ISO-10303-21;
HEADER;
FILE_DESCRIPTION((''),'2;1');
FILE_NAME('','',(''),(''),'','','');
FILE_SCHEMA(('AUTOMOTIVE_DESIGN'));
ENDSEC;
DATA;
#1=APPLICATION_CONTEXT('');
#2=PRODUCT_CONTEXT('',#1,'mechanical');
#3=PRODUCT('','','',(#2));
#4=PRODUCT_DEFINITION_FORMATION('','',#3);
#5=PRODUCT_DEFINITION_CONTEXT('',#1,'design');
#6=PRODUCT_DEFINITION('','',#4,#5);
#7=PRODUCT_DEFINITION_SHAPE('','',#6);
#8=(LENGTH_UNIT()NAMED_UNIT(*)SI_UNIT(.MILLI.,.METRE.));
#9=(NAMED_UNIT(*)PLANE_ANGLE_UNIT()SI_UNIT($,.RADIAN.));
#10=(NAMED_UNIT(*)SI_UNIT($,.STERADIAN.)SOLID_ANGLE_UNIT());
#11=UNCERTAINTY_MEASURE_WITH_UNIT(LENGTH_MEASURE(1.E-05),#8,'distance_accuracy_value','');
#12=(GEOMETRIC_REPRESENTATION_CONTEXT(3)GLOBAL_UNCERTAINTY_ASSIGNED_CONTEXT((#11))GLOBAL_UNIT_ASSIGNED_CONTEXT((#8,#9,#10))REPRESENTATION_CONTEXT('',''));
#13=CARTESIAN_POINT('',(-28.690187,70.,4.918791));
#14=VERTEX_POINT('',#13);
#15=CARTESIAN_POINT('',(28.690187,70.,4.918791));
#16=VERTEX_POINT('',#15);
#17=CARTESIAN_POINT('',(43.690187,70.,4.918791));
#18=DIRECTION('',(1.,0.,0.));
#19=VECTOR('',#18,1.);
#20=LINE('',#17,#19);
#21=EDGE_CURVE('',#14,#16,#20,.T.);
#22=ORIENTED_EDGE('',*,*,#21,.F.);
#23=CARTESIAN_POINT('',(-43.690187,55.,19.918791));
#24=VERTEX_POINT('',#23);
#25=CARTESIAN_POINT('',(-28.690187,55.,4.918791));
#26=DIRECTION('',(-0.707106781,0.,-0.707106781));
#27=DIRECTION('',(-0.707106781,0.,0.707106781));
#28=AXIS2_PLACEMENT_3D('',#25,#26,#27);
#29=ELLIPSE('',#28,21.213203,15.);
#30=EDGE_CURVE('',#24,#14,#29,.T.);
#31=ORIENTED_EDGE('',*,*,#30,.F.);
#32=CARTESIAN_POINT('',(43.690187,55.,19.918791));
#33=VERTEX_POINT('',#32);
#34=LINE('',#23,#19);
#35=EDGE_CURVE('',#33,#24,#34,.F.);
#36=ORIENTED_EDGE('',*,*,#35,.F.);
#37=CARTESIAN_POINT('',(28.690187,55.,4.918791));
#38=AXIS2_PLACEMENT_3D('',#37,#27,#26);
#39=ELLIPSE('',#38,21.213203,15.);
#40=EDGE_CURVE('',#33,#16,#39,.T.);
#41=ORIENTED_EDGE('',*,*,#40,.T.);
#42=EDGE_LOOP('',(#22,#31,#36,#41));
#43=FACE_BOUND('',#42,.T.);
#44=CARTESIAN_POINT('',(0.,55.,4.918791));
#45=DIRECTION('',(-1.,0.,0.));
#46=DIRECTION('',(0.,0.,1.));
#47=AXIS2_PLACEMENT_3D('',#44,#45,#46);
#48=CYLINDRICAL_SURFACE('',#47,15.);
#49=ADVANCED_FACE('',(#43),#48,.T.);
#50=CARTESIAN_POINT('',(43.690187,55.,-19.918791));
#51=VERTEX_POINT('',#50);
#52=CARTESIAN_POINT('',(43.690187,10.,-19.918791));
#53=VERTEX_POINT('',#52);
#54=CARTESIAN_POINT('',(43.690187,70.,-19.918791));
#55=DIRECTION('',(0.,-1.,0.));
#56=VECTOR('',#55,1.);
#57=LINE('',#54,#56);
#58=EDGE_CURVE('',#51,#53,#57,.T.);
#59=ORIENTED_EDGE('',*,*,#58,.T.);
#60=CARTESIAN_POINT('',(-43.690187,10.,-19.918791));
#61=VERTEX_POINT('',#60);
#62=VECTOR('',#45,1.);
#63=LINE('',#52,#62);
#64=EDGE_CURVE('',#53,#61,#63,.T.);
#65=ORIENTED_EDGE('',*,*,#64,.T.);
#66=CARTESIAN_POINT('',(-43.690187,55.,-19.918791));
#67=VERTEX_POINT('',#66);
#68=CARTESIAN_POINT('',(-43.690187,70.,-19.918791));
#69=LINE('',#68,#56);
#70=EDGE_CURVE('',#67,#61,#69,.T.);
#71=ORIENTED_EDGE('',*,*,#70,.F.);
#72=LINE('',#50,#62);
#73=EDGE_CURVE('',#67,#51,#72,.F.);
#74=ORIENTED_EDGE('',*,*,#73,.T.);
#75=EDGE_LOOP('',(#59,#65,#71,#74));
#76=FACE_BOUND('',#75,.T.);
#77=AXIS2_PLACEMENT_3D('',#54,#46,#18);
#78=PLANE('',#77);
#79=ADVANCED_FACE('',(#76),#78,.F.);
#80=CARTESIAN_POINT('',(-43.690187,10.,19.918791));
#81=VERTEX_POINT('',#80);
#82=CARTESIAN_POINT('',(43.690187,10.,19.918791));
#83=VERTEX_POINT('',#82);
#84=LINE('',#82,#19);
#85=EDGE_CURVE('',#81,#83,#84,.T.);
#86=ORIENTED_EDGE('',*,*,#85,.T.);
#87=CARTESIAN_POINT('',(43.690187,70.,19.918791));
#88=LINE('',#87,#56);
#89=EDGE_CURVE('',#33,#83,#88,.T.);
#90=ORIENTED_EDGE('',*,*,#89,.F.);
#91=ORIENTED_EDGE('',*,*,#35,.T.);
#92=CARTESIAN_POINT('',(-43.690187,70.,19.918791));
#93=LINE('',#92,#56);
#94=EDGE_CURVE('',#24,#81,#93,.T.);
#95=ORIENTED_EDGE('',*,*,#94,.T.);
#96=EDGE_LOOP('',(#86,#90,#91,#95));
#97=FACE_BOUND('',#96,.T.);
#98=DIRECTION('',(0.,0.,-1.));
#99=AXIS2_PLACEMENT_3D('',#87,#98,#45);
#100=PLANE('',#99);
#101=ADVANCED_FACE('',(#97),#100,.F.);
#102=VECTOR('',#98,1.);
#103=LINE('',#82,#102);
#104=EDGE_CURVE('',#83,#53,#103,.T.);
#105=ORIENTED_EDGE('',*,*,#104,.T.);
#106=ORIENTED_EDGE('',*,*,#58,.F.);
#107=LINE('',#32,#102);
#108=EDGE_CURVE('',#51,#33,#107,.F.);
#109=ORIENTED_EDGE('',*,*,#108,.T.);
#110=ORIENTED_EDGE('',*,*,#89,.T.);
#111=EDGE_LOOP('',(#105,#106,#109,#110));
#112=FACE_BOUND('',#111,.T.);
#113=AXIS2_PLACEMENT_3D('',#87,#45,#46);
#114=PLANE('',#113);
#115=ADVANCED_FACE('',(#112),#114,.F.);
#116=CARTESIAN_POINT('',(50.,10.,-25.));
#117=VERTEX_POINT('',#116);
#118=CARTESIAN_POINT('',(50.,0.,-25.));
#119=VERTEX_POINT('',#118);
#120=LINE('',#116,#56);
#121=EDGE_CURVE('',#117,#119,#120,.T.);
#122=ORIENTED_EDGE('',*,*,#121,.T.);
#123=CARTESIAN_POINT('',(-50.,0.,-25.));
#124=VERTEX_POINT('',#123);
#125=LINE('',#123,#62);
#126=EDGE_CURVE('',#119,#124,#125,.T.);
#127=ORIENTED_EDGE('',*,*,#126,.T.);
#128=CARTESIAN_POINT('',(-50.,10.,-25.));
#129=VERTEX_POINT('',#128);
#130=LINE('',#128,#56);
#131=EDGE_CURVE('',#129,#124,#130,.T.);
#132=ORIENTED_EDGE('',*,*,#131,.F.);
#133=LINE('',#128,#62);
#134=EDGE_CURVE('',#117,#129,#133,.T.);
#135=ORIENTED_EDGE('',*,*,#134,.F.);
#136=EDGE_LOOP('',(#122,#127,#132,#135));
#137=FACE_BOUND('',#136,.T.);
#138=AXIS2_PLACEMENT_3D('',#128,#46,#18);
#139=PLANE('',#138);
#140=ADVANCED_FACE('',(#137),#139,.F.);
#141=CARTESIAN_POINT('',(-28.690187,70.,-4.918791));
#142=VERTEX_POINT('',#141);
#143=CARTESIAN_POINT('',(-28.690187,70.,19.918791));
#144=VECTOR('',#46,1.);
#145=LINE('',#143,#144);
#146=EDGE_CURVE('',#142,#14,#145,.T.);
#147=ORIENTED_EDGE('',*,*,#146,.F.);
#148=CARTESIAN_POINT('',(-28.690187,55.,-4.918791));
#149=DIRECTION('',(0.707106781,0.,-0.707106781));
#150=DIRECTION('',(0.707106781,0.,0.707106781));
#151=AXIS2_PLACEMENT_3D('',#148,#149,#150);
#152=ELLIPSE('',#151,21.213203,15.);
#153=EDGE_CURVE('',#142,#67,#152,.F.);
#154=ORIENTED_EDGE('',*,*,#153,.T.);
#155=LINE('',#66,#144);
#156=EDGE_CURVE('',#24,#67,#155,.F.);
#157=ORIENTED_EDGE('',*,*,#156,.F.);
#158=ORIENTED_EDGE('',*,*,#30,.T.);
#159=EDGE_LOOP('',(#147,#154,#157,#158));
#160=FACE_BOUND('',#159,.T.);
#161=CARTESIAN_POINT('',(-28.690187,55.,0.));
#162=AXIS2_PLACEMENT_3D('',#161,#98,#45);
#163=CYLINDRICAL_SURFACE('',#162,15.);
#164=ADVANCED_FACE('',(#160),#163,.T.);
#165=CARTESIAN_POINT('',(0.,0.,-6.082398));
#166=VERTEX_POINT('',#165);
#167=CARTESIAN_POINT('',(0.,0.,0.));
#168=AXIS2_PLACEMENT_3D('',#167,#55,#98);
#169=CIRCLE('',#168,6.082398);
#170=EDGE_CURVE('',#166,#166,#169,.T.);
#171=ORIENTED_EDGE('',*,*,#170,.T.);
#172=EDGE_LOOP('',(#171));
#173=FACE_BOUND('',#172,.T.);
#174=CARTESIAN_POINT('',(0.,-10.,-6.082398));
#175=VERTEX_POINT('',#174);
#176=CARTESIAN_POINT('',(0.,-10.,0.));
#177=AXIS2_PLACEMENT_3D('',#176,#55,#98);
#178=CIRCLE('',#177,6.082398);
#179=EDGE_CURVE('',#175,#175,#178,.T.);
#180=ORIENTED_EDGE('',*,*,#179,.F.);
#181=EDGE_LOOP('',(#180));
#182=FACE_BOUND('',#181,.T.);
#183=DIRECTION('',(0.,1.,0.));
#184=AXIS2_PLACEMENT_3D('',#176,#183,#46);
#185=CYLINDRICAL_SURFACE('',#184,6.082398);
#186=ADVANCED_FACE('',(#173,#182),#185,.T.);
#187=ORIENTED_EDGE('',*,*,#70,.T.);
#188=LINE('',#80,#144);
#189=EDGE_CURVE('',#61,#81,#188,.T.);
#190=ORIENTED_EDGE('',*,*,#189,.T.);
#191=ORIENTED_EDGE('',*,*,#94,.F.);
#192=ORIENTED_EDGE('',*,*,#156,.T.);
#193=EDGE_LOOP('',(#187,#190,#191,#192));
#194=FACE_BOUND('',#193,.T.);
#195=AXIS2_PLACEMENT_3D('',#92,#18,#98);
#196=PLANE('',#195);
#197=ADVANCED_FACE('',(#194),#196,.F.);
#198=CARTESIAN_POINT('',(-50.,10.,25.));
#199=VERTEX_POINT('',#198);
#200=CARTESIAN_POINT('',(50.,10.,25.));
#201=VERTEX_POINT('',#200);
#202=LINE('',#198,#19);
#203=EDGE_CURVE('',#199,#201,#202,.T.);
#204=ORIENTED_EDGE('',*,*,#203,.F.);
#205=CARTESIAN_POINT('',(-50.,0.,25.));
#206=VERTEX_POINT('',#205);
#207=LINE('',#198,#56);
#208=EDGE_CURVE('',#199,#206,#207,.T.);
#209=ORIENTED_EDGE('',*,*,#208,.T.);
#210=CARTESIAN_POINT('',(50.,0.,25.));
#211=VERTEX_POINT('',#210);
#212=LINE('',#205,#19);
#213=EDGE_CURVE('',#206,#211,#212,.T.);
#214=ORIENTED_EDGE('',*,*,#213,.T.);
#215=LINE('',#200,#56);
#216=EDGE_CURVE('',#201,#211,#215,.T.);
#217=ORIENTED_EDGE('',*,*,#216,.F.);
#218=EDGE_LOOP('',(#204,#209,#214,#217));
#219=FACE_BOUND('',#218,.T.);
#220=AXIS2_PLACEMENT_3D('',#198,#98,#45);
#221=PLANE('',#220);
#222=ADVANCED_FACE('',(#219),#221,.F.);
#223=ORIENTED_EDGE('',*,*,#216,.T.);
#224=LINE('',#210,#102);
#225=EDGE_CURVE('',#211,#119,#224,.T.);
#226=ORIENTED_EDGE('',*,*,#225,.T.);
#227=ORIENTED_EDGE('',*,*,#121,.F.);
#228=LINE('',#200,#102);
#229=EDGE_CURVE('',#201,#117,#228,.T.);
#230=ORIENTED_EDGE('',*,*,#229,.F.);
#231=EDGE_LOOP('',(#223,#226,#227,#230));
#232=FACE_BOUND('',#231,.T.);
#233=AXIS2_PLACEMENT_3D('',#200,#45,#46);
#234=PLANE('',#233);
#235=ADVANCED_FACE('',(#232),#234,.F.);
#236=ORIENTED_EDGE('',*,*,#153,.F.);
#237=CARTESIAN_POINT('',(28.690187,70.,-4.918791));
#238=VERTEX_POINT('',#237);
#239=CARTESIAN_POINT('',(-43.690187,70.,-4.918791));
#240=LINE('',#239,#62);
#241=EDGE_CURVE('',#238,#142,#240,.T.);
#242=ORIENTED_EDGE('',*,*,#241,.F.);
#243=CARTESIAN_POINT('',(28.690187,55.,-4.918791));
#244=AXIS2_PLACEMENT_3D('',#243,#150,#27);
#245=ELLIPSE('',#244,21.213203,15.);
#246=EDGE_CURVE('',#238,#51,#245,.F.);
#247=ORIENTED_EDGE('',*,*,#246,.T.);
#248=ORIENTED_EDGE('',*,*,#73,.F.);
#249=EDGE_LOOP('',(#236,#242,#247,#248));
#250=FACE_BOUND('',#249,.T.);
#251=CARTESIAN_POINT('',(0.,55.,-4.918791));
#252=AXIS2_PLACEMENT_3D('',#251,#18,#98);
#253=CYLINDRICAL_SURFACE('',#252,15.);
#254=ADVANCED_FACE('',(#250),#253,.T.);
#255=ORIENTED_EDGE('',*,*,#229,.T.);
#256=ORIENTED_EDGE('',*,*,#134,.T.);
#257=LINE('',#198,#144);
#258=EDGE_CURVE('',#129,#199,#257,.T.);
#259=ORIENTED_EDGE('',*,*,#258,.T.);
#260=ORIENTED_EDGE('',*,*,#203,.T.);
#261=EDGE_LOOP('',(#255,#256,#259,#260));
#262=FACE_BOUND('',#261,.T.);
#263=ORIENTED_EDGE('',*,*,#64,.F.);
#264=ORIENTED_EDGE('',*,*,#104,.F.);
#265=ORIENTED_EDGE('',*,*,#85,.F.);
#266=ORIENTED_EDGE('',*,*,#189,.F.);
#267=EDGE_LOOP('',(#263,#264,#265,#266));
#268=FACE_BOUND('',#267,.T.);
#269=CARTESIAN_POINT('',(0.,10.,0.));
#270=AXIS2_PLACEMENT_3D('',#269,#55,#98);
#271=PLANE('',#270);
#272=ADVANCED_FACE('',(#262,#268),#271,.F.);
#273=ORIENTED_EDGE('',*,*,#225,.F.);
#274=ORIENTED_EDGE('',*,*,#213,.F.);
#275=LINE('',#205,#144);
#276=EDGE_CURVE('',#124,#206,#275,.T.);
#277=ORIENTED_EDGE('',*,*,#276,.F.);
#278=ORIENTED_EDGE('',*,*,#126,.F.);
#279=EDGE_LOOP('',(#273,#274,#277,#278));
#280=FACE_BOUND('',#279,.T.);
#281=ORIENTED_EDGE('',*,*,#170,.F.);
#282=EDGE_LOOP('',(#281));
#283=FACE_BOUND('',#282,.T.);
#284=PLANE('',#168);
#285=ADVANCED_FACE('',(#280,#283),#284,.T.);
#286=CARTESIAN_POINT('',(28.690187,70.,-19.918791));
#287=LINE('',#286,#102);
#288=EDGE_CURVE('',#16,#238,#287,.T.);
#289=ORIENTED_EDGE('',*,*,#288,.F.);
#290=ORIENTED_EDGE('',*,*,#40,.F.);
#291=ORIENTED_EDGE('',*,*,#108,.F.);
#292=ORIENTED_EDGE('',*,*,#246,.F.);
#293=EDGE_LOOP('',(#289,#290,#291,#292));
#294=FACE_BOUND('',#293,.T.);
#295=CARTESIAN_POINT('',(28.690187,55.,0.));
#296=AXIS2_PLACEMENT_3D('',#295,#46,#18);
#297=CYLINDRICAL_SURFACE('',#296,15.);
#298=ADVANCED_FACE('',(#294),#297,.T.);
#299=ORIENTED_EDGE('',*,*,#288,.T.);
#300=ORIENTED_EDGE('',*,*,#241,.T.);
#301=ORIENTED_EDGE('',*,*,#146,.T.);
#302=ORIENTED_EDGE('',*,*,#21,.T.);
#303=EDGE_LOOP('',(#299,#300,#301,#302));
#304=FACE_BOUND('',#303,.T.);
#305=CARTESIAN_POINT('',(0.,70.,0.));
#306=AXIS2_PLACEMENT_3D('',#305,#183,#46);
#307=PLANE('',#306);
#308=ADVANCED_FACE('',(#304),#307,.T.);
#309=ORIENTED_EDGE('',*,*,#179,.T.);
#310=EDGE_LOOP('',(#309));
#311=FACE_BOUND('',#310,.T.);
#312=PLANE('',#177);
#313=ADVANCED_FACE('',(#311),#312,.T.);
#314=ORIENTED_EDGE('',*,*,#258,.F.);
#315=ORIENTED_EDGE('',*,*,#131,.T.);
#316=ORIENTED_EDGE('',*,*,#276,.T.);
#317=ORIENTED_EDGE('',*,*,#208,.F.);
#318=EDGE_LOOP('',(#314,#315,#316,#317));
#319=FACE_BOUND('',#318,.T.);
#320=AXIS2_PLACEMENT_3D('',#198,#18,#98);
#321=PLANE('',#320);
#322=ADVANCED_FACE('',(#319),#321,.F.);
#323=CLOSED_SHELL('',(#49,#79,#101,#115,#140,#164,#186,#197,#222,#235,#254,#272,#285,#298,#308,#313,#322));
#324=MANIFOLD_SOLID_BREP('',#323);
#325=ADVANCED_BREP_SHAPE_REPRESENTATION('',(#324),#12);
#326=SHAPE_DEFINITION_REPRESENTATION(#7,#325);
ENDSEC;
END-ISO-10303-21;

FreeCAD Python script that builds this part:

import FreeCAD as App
import Part
import Sketcher


def edges_at(feature, points):
    """Names of the edges that pass closest to the given points."""
    edges = feature.Shape.Edges
    near = lambda p: min(range(len(edges)), key=lambda i: edges[i].distToShape(Part.Vertex(*p))[0])
    return sorted({f"Edge{near(p) + 1}" for p in points})


def add_polygon(sketch, points):
    """Adds a closed chain of lines whose ends are joined by coincident constraints."""
    first, n = sketch.GeometryCount, len(points)
    for a, b in zip(points, points[1:] + points[:1]):
        sketch.addGeometry(Part.LineSegment(App.Vector(*a, 0), App.Vector(*b, 0)), False)
    for i in range(n):
        sketch.addConstraint(Sketcher.Constraint("Coincident", first + i, 2, first + (i + 1) % n, 1))

doc = App.newDocument("Part")
body = doc.addObject("PartDesign::Body", "Body")

sketch1 = body.newObject("Sketcher::SketchObject", "Sketch")
sketch1.AttachmentSupport = (doc.getObject("XZ_Plane"), [""])
sketch1.MapMode = "FlatFace"
add_polygon(sketch1, [(-50, -25), (-50, 25), (50, 25), (50, -25)])
sketch1.addConstraint([
    Sketcher.Constraint("Vertical", 0),
    Sketcher.Constraint("Horizontal", 1),
    Sketcher.Constraint("Vertical", 2),
    Sketcher.Constraint("Horizontal", 3),
    Sketcher.Constraint("Symmetric", 0, 2, 2, 2, -1, 1),
    Sketcher.Constraint("DistanceX", 1, 1, 1, 2, 100.0),
    Sketcher.Constraint("DistanceY", 0, 1, 0, 2, 50.0),
])
pad1 = body.newObject("PartDesign::Pad", "Pad")
pad1.Profile = sketch1
pad1.Length = 10
pad1.Reversed = True

sketch2 = body.newObject("Sketcher::SketchObject", "Sketch001")
sketch2.AttachmentSupport = (doc.getObject("XZ_Plane"), [""])
sketch2.MapMode = "FlatFace"
sketch2.AttachmentOffset = App.Placement(App.Vector(0, 0, -10), App.Rotation())
add_polygon(sketch2, [(-43.690187, -19.918791), (-43.690187, 19.918791), (43.690187, 19.918791), (43.690187, -19.918791)])
sketch2.addConstraint([
    Sketcher.Constraint("Vertical", 0),
    Sketcher.Constraint("Horizontal", 1),
    Sketcher.Constraint("Vertical", 2),
    Sketcher.Constraint("Horizontal", 3),
    Sketcher.Constraint("Symmetric", 0, 2, 2, 2, -1, 1),
    Sketcher.Constraint("DistanceY", 0, 1, 0, 2, 39.837582),
    Sketcher.Constraint("DistanceX", 1, 1, 1, 2, 87.380374),
])
pad2 = body.newObject("PartDesign::Pad", "Pad001")
pad2.Profile = sketch2
pad2.Length = 60
pad2.Reversed = True
doc.recompute()

fillet = body.newObject("PartDesign::Fillet", "Fillet")
fillet.Base = (pad2, edges_at(pad2, [
    (-43.69, 70, 0),
    (0, 70, 19.919),
    (43.69, 70, 0),
    (0, 70, -19.919),
]))
fillet.Radius = 15

sketch3 = body.newObject("Sketcher::SketchObject", "Sketch002")
sketch3.AttachmentSupport = (doc.getObject("XZ_Plane"), [""])
sketch3.MapMode = "FlatFace"
sketch3.addGeometry(Part.Circle(App.Vector(0, 0, 0), App.Vector(0, 0, 1), 6.082398), False)
sketch3.addConstraint([
    Sketcher.Constraint("Coincident", 0, 3, -1, 1),
    Sketcher.Constraint("Diameter", 0, 12.164795),
])
pad3 = body.newObject("PartDesign::Pad", "Pad002")
pad3.Profile = sketch3
pad3.Length = 10

doc.recompute()
